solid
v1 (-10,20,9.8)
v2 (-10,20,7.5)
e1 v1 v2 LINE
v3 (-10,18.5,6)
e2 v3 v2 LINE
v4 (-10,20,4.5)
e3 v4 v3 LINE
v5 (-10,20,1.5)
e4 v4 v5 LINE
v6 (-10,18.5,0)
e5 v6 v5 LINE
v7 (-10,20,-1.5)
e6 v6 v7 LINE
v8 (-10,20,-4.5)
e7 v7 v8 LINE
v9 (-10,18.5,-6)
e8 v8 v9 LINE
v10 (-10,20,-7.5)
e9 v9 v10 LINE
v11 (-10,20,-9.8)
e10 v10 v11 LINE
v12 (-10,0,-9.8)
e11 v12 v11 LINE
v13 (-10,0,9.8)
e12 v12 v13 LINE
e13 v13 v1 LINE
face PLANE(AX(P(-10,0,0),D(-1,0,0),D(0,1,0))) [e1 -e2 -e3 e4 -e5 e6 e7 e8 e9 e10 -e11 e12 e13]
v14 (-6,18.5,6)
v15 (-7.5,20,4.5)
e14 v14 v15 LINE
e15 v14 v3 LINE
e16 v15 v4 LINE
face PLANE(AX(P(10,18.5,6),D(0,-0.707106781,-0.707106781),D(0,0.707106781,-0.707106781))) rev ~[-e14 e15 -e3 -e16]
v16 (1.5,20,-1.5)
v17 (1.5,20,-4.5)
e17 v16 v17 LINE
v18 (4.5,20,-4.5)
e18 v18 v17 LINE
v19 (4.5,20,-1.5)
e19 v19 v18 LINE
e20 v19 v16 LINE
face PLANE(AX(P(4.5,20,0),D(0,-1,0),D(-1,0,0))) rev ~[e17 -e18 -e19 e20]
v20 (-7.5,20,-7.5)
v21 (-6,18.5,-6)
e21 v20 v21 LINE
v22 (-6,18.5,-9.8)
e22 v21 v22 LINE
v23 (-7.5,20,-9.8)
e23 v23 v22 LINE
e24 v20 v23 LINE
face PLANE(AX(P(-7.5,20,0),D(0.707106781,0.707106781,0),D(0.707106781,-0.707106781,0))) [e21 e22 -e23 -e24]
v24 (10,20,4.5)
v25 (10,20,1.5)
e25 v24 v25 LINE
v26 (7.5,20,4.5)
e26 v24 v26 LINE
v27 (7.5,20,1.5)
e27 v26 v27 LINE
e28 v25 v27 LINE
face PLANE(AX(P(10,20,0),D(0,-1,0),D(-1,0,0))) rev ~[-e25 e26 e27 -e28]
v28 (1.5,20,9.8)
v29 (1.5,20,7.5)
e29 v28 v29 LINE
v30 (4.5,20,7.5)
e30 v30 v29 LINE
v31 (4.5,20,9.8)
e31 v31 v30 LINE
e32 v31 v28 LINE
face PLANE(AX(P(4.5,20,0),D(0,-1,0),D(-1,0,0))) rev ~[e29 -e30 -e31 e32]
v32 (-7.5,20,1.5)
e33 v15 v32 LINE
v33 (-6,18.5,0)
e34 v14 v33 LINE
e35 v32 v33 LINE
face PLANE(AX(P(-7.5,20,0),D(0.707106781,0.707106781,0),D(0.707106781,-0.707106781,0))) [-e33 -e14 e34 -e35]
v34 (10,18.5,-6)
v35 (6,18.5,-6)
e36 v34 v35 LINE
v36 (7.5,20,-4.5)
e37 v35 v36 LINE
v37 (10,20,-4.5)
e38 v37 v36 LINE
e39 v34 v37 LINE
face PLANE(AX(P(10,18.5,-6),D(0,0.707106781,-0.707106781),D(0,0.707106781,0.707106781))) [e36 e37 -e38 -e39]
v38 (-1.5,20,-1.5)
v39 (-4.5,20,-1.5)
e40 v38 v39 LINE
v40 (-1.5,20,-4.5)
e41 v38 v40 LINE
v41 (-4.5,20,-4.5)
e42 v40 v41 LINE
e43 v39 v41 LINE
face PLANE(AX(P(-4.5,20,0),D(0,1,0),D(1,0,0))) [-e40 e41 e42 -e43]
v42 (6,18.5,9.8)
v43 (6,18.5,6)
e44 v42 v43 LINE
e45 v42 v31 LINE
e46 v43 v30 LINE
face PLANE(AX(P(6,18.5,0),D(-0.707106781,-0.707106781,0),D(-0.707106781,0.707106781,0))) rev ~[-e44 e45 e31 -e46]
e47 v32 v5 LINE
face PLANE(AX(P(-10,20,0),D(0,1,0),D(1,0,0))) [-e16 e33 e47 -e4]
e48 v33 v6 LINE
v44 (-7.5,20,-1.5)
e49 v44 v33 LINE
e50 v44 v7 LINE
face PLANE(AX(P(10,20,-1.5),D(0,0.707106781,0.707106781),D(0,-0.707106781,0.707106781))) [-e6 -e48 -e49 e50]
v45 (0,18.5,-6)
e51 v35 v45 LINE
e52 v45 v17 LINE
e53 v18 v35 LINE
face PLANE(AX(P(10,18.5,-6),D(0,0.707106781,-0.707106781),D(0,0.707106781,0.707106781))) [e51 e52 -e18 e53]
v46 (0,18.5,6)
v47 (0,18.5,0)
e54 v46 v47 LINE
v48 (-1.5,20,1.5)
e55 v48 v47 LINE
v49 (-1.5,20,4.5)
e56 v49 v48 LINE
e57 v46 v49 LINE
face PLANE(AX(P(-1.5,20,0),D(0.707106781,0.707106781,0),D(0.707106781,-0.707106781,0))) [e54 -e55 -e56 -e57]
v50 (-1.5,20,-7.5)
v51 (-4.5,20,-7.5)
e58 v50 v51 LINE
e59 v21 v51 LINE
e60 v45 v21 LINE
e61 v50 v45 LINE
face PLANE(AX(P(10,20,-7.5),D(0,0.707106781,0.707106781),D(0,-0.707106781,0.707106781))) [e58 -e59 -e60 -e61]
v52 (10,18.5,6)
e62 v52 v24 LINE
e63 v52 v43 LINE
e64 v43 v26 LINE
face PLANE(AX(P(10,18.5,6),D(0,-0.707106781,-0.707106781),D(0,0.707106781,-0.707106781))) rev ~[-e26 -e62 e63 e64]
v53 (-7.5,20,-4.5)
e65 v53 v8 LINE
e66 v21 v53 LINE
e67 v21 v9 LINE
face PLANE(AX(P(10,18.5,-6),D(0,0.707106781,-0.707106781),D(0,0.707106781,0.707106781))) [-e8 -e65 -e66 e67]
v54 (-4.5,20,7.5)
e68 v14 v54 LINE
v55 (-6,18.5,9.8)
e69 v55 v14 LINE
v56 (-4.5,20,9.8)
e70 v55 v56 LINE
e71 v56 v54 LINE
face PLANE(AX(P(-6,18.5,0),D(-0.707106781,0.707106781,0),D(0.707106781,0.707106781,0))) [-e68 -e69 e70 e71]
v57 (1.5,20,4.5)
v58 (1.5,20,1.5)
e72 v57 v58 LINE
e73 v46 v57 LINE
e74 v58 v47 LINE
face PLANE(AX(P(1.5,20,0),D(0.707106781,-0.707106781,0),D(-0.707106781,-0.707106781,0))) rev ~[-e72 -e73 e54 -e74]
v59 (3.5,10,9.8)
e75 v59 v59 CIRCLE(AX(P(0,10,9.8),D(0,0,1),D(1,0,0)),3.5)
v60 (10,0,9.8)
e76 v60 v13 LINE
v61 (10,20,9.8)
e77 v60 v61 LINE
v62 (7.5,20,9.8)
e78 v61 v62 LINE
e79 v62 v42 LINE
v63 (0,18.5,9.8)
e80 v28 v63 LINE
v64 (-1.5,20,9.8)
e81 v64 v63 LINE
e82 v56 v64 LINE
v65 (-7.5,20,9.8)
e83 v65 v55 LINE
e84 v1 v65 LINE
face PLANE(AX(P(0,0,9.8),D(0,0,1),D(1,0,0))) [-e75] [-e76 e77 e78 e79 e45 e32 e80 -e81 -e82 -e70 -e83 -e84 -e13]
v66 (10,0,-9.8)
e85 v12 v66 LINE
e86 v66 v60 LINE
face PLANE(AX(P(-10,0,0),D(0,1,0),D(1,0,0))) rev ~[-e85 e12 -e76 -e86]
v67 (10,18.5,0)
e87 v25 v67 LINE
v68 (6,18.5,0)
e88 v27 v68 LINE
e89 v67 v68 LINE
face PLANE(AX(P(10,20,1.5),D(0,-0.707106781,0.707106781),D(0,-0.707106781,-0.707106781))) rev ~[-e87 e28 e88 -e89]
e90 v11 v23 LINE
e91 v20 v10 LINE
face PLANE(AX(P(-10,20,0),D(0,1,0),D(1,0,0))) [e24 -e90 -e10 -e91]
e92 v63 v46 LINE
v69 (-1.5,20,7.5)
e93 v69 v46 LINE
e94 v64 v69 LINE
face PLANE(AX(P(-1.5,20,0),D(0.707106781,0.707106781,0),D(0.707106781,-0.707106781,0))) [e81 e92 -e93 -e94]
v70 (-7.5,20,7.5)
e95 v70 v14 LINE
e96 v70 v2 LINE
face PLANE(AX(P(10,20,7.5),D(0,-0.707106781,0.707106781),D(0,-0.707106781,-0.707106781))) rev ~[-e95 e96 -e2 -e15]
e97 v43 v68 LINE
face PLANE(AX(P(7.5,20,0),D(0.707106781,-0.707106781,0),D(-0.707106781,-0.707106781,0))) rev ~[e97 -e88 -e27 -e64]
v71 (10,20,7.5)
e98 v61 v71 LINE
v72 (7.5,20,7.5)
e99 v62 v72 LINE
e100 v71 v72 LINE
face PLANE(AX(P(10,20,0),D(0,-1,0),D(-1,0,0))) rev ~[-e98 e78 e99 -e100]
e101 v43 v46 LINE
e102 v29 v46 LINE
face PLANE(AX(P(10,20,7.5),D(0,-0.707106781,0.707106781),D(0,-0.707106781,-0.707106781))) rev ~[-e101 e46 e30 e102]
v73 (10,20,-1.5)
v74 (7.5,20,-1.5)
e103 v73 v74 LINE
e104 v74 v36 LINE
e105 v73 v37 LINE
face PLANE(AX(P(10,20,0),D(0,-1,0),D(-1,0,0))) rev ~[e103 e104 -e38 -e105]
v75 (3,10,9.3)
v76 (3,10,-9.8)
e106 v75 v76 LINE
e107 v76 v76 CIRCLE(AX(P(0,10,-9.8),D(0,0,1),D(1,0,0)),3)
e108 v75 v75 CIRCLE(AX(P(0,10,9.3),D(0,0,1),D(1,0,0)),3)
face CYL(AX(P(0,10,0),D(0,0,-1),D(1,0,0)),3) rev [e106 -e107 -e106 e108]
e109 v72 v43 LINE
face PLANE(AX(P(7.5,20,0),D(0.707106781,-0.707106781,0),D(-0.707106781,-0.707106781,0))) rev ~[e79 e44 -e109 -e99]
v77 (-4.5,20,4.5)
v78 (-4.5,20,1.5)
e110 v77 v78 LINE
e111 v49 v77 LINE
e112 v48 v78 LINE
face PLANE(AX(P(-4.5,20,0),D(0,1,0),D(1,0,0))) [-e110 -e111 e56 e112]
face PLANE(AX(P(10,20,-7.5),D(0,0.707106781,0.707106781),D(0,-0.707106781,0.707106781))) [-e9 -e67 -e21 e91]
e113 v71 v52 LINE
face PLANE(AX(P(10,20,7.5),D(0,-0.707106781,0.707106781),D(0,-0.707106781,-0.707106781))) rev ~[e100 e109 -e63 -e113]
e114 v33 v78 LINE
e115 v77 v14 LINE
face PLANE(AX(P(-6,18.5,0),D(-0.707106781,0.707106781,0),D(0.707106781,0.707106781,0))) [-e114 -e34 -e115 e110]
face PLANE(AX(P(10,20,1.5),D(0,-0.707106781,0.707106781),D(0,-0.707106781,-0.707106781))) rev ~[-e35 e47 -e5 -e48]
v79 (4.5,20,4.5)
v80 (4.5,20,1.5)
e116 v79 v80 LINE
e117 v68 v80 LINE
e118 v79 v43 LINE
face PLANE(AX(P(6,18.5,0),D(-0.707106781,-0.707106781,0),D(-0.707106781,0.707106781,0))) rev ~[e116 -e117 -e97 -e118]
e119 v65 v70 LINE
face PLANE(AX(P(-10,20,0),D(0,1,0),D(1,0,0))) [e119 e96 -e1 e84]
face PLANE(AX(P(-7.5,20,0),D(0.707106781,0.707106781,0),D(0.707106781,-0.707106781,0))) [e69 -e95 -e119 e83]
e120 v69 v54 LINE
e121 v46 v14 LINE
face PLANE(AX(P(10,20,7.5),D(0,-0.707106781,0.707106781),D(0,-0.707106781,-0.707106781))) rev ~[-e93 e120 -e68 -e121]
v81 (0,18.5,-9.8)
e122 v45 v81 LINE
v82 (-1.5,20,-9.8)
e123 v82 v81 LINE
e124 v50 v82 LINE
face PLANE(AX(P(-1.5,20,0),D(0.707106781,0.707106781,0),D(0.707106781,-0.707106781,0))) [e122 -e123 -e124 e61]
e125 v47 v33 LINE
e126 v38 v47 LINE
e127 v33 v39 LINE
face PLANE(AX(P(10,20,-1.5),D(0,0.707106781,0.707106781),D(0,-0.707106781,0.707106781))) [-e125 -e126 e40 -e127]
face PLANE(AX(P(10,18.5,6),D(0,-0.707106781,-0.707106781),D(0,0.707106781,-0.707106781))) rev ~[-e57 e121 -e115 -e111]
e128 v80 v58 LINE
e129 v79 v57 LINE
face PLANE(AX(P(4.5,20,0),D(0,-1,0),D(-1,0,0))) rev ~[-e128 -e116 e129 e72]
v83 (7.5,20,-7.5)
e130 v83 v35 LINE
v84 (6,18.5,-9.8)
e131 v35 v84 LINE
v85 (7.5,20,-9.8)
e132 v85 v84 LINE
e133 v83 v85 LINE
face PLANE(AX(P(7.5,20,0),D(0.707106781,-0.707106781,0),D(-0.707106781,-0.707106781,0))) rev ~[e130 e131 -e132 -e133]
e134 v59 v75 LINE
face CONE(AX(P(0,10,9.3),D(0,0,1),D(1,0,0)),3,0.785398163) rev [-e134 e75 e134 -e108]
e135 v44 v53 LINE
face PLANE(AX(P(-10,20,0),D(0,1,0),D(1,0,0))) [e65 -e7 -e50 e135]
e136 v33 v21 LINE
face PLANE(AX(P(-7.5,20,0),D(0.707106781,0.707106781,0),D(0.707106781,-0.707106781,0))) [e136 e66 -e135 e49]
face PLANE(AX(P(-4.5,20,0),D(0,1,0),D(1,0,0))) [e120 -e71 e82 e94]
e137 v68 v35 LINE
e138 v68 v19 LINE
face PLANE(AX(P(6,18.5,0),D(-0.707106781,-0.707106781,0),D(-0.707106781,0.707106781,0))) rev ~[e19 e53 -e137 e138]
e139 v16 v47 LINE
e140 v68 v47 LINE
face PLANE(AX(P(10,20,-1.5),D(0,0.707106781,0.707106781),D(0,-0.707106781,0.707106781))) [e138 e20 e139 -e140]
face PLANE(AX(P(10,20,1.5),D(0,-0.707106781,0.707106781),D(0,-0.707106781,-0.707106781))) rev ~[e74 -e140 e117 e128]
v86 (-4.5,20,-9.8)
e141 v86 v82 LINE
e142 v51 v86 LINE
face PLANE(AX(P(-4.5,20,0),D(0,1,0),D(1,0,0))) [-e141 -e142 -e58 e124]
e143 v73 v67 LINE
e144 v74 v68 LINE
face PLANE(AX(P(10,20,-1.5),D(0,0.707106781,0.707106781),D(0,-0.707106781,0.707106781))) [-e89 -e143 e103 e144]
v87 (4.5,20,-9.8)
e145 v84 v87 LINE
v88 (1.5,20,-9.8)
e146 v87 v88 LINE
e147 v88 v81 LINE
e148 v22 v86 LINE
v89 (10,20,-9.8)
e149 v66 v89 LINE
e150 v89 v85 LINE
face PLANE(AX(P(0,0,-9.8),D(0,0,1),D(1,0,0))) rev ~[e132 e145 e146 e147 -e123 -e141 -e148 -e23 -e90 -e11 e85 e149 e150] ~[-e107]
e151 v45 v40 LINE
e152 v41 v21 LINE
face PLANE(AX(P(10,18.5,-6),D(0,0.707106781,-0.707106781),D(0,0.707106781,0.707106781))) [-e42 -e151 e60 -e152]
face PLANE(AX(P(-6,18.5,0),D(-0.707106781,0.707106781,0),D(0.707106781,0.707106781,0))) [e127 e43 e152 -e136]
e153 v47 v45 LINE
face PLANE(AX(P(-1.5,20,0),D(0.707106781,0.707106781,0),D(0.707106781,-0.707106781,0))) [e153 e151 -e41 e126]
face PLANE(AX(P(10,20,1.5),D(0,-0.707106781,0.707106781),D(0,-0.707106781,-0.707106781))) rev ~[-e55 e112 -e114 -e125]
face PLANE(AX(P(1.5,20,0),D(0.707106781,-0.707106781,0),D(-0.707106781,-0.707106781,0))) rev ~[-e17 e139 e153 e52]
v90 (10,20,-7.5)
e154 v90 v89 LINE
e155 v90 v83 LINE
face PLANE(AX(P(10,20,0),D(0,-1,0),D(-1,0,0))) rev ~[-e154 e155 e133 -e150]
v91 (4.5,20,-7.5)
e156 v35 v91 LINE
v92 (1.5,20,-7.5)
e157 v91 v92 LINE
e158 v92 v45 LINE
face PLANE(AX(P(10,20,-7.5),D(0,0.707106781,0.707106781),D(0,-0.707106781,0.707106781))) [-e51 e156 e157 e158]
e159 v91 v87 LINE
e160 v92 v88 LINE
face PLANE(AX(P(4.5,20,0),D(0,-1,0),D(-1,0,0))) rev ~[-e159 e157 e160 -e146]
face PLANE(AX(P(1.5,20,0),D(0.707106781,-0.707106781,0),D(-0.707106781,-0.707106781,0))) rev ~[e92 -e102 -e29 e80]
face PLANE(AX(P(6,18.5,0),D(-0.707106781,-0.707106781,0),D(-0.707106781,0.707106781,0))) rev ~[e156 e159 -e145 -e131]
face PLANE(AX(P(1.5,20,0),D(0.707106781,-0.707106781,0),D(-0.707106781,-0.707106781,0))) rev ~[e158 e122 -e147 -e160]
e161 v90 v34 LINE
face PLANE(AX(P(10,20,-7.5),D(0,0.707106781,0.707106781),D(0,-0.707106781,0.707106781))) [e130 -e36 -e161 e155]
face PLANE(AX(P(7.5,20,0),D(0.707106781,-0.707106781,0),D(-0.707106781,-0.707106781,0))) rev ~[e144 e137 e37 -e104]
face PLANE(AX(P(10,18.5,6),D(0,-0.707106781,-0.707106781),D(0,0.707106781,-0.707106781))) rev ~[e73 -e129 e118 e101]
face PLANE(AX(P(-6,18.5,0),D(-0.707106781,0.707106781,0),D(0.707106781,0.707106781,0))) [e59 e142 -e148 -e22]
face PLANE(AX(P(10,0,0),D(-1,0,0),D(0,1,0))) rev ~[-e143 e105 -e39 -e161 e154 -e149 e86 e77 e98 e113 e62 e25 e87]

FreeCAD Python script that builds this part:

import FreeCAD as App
import Part
import Sketcher
from FreeCAD import Vector


def edges_at(feature, points):
    """Names of the edges that pass closest to the given points."""
    edges = feature.Shape.Edges
    near = lambda p: min(range(len(edges)), key=lambda i: edges[i].distToShape(Part.Vertex(*p))[0])
    return sorted({f"Edge{near(p) + 1}" for p in points})

doc = App.newDocument("Part")
body = doc.addObject("PartDesign::Body", "Body")

# Sketch on XY plane
sketch1 = body.newObject("Sketcher::SketchObject", "Sketch")
sketch1.AttachmentSupport = (doc.getObject("XY_Plane"), [""])
sketch1.MapMode = "FlatFace"
sketch1.addGeometry([
    Part.LineSegment(Vector(-10, 20, 0), Vector(-10, 0, 0)),  # 0
    Part.LineSegment(Vector(-10, 0, 0), Vector(10, 0, 0)),  # 1
    Part.LineSegment(Vector(10, 0, 0), Vector(10, 20, 0)),  # 2
    Part.LineSegment(Vector(10, 20, 0), Vector(7.5, 20, 0)),  # 3
    Part.LineSegment(Vector(7.5, 20, 0), Vector(6, 18.5, 0)),  # 4
    Part.LineSegment(Vector(6, 18.5, 0), Vector(4.5, 20, 0)),  # 5
    Part.LineSegment(Vector(4.5, 20, 0), Vector(1.5, 20, 0)),  # 6
    Part.LineSegment(Vector(1.5, 20, 0), Vector(0, 18.5, 0)),  # 7
    Part.LineSegment(Vector(0, 18.5, 0), Vector(-1.5, 20, 0)),  # 8
    Part.LineSegment(Vector(-1.5, 20, 0), Vector(-4.5, 20, 0)),  # 9
    Part.LineSegment(Vector(-4.5, 20, 0), Vector(-6, 18.5, 0)),  # 10
    Part.LineSegment(Vector(-6, 18.5, 0), Vector(-7.5, 20, 0)),  # 11
    Part.LineSegment(Vector(-7.5, 20, 0), Vector(-10, 20, 0)),  # 12
    Part.Circle(Vector(0, 10, 0), Vector(0, 0, 1), 3),  # 13
], False)
sketch1.addConstraint([
    Sketcher.Constraint("Coincident", 0, 2, 1, 1),
    Sketcher.Constraint("Coincident", 1, 2, 2, 1),
    Sketcher.Constraint("Coincident", 2, 2, 3, 1),
    Sketcher.Constraint("Coincident", 3, 2, 4, 1),
    Sketcher.Constraint("Coincident", 4, 2, 5, 1),
    Sketcher.Constraint("Coincident", 5, 2, 6, 1),
    Sketcher.Constraint("Coincident", 6, 2, 7, 1),
    Sketcher.Constraint("Coincident", 7, 2, 8, 1),
    Sketcher.Constraint("Coincident", 8, 2, 9, 1),
    Sketcher.Constraint("Coincident", 9, 2, 10, 1),
    Sketcher.Constraint("Coincident", 10, 2, 11, 1),
    Sketcher.Constraint("Coincident", 11, 2, 12, 1),
    Sketcher.Constraint("Coincident", 12, 2, 0, 1),
    Sketcher.Constraint("Vertical", 0),
    Sketcher.Constraint("Horizontal", 1),
    Sketcher.Constraint("Vertical", 2),
    Sketcher.Constraint("Horizontal", 3),
    Sketcher.Constraint("Horizontal", 6),
    Sketcher.Constraint("Horizontal", 9),
    Sketcher.Constraint("Horizontal", 12),
    Sketcher.Constraint("Symmetric", 0, 2, 1, 2, -1, 1),
    Sketcher.Constraint("Symmetric", 6, 2, 8, 2, -2),
    Sketcher.Constraint("Symmetric", 4, 2, 10, 2, -2),
    Sketcher.Constraint("Symmetric", 3, 2, 11, 2, -2),
    Sketcher.Constraint("PointOnObject", 13, 3, -2),
    Sketcher.Constraint("PointOnObject", 7, 2, -2),
    Sketcher.Constraint("Perpendicular", 4, 5),
    Sketcher.Constraint("Perpendicular", 5, 7),
    Sketcher.Constraint("Perpendicular", 7, 8),
    Sketcher.Constraint("Perpendicular", 8, 10),
    Sketcher.Constraint("Horizontal", 3, 2, 5, 2),
    Sketcher.Constraint("Horizontal", 4, 2, 7, 2),
    Sketcher.Constraint("Equal", 1, 0),
    Sketcher.Constraint("Diameter", 13, 6.0),
    Sketcher.Constraint("DistanceX", 1, 1, 1, 2, 20.0),
    Sketcher.Constraint("DistanceY", -1, 1, 13, 3, 10.0),
    Sketcher.Constraint("DistanceX", -1, 1, 4, 2, 6.0),
    Sketcher.Constraint("DistanceX", -1, 1, 6, 2, 1.5),
])
pad1 = body.newObject("PartDesign::Pad", "Pad")
pad1.Profile = sketch1
pad1.Length = 19.6
pad1.Midplane = True

# Sketch on YZ plane
sketch2 = body.newObject("Sketcher::SketchObject", "Sketch001")
sketch2.AttachmentSupport = (doc.getObject("YZ_Plane"), [""])
sketch2.MapMode = "FlatFace"
sketch2.AttachmentOffset = App.Placement(Vector(0, 0, 10), App.Rotation())
sketch2.addGeometry([
    Part.LineSegment(Vector(18.5, -6, 0), Vector(20, -7.5, 0)),  # 0
    Part.LineSegment(Vector(20, -7.5, 0), Vector(20, -4.5, 0)),  # 1
    Part.LineSegment(Vector(20, -4.5, 0), Vector(18.5, -6, 0)),  # 2
    Part.LineSegment(Vector(18.5, 6, 0), Vector(20, 4.5, 0)),  # 3
    Part.LineSegment(Vector(20, 4.5, 0), Vector(20, 7.5, 0)),  # 4
    Part.LineSegment(Vector(20, 7.5, 0), Vector(18.5, 6, 0)),  # 5
    Part.LineSegment(Vector(18.5, 0, 0), Vector(20, -1.5, 0)),  # 6
    Part.LineSegment(Vector(20, -1.5, 0), Vector(20, 1.5, 0)),  # 7
    Part.LineSegment(Vector(20, 1.5, 0), Vector(18.5, 0, 0)),  # 8
], False)
sketch2.addConstraint([
    Sketcher.Constraint("Coincident", 0, 2, 1, 1),
    Sketcher.Constraint("Coincident", 1, 2, 2, 1),
    Sketcher.Constraint("Coincident", 2, 2, 0, 1),
    Sketcher.Constraint("Coincident", 3, 2, 4, 1),
    Sketcher.Constraint("Coincident", 4, 2, 5, 1),
    Sketcher.Constraint("Coincident", 5, 2, 3, 1),
    Sketcher.Constraint("Coincident", 6, 2, 7, 1),
    Sketcher.Constraint("Coincident", 7, 2, 8, 1),
    Sketcher.Constraint("Coincident", 8, 2, 6, 1),
    Sketcher.Constraint("Vertical", 1),
    Sketcher.Constraint("Vertical", 4),
    Sketcher.Constraint("Vertical", 7),
    Sketcher.Constraint("Symmetric", 1, 2, 3, 2, -1),
    Sketcher.Constraint("Symmetric", 2, 2, 5, 2, -1),
    Sketcher.Constraint("PointOnObject", 8, 2, -1),
    Sketcher.Constraint("Perpendicular", 0, 2),
    Sketcher.Constraint("Perpendicular", 2, 3),
    Sketcher.Constraint("Perpendicular", 3, 5),
    Sketcher.Constraint("Perpendicular", 5, 6),
    Sketcher.Constraint("Perpendicular", 6, 8),
    Sketcher.Constraint("Vertical", 4, 2, 6, 2),
    Sketcher.Constraint("Vertical", 5, 2, 8, 2),
    Sketcher.Constraint("DistanceY", 2, 2, -1, 1, 6.0),
    Sketcher.Constraint("DistanceY", 6, 2, -1, 1, 1.5),
    Sketcher.Constraint("DistanceX", -1, 1, 0, 2, 20.0),
])
pocket1 = body.newObject("PartDesign::Pocket", "Pocket")
pocket1.Profile = sketch2
pocket1.Type = "ThroughAll"
doc.recompute()

chamfer = body.newObject("PartDesign::Chamfer", "Chamfer")
chamfer.Base = (pocket1, edges_at(pocket1, [(-3, 10, 9.8)]))
chamfer.Size = 0.5

doc.recompute()
